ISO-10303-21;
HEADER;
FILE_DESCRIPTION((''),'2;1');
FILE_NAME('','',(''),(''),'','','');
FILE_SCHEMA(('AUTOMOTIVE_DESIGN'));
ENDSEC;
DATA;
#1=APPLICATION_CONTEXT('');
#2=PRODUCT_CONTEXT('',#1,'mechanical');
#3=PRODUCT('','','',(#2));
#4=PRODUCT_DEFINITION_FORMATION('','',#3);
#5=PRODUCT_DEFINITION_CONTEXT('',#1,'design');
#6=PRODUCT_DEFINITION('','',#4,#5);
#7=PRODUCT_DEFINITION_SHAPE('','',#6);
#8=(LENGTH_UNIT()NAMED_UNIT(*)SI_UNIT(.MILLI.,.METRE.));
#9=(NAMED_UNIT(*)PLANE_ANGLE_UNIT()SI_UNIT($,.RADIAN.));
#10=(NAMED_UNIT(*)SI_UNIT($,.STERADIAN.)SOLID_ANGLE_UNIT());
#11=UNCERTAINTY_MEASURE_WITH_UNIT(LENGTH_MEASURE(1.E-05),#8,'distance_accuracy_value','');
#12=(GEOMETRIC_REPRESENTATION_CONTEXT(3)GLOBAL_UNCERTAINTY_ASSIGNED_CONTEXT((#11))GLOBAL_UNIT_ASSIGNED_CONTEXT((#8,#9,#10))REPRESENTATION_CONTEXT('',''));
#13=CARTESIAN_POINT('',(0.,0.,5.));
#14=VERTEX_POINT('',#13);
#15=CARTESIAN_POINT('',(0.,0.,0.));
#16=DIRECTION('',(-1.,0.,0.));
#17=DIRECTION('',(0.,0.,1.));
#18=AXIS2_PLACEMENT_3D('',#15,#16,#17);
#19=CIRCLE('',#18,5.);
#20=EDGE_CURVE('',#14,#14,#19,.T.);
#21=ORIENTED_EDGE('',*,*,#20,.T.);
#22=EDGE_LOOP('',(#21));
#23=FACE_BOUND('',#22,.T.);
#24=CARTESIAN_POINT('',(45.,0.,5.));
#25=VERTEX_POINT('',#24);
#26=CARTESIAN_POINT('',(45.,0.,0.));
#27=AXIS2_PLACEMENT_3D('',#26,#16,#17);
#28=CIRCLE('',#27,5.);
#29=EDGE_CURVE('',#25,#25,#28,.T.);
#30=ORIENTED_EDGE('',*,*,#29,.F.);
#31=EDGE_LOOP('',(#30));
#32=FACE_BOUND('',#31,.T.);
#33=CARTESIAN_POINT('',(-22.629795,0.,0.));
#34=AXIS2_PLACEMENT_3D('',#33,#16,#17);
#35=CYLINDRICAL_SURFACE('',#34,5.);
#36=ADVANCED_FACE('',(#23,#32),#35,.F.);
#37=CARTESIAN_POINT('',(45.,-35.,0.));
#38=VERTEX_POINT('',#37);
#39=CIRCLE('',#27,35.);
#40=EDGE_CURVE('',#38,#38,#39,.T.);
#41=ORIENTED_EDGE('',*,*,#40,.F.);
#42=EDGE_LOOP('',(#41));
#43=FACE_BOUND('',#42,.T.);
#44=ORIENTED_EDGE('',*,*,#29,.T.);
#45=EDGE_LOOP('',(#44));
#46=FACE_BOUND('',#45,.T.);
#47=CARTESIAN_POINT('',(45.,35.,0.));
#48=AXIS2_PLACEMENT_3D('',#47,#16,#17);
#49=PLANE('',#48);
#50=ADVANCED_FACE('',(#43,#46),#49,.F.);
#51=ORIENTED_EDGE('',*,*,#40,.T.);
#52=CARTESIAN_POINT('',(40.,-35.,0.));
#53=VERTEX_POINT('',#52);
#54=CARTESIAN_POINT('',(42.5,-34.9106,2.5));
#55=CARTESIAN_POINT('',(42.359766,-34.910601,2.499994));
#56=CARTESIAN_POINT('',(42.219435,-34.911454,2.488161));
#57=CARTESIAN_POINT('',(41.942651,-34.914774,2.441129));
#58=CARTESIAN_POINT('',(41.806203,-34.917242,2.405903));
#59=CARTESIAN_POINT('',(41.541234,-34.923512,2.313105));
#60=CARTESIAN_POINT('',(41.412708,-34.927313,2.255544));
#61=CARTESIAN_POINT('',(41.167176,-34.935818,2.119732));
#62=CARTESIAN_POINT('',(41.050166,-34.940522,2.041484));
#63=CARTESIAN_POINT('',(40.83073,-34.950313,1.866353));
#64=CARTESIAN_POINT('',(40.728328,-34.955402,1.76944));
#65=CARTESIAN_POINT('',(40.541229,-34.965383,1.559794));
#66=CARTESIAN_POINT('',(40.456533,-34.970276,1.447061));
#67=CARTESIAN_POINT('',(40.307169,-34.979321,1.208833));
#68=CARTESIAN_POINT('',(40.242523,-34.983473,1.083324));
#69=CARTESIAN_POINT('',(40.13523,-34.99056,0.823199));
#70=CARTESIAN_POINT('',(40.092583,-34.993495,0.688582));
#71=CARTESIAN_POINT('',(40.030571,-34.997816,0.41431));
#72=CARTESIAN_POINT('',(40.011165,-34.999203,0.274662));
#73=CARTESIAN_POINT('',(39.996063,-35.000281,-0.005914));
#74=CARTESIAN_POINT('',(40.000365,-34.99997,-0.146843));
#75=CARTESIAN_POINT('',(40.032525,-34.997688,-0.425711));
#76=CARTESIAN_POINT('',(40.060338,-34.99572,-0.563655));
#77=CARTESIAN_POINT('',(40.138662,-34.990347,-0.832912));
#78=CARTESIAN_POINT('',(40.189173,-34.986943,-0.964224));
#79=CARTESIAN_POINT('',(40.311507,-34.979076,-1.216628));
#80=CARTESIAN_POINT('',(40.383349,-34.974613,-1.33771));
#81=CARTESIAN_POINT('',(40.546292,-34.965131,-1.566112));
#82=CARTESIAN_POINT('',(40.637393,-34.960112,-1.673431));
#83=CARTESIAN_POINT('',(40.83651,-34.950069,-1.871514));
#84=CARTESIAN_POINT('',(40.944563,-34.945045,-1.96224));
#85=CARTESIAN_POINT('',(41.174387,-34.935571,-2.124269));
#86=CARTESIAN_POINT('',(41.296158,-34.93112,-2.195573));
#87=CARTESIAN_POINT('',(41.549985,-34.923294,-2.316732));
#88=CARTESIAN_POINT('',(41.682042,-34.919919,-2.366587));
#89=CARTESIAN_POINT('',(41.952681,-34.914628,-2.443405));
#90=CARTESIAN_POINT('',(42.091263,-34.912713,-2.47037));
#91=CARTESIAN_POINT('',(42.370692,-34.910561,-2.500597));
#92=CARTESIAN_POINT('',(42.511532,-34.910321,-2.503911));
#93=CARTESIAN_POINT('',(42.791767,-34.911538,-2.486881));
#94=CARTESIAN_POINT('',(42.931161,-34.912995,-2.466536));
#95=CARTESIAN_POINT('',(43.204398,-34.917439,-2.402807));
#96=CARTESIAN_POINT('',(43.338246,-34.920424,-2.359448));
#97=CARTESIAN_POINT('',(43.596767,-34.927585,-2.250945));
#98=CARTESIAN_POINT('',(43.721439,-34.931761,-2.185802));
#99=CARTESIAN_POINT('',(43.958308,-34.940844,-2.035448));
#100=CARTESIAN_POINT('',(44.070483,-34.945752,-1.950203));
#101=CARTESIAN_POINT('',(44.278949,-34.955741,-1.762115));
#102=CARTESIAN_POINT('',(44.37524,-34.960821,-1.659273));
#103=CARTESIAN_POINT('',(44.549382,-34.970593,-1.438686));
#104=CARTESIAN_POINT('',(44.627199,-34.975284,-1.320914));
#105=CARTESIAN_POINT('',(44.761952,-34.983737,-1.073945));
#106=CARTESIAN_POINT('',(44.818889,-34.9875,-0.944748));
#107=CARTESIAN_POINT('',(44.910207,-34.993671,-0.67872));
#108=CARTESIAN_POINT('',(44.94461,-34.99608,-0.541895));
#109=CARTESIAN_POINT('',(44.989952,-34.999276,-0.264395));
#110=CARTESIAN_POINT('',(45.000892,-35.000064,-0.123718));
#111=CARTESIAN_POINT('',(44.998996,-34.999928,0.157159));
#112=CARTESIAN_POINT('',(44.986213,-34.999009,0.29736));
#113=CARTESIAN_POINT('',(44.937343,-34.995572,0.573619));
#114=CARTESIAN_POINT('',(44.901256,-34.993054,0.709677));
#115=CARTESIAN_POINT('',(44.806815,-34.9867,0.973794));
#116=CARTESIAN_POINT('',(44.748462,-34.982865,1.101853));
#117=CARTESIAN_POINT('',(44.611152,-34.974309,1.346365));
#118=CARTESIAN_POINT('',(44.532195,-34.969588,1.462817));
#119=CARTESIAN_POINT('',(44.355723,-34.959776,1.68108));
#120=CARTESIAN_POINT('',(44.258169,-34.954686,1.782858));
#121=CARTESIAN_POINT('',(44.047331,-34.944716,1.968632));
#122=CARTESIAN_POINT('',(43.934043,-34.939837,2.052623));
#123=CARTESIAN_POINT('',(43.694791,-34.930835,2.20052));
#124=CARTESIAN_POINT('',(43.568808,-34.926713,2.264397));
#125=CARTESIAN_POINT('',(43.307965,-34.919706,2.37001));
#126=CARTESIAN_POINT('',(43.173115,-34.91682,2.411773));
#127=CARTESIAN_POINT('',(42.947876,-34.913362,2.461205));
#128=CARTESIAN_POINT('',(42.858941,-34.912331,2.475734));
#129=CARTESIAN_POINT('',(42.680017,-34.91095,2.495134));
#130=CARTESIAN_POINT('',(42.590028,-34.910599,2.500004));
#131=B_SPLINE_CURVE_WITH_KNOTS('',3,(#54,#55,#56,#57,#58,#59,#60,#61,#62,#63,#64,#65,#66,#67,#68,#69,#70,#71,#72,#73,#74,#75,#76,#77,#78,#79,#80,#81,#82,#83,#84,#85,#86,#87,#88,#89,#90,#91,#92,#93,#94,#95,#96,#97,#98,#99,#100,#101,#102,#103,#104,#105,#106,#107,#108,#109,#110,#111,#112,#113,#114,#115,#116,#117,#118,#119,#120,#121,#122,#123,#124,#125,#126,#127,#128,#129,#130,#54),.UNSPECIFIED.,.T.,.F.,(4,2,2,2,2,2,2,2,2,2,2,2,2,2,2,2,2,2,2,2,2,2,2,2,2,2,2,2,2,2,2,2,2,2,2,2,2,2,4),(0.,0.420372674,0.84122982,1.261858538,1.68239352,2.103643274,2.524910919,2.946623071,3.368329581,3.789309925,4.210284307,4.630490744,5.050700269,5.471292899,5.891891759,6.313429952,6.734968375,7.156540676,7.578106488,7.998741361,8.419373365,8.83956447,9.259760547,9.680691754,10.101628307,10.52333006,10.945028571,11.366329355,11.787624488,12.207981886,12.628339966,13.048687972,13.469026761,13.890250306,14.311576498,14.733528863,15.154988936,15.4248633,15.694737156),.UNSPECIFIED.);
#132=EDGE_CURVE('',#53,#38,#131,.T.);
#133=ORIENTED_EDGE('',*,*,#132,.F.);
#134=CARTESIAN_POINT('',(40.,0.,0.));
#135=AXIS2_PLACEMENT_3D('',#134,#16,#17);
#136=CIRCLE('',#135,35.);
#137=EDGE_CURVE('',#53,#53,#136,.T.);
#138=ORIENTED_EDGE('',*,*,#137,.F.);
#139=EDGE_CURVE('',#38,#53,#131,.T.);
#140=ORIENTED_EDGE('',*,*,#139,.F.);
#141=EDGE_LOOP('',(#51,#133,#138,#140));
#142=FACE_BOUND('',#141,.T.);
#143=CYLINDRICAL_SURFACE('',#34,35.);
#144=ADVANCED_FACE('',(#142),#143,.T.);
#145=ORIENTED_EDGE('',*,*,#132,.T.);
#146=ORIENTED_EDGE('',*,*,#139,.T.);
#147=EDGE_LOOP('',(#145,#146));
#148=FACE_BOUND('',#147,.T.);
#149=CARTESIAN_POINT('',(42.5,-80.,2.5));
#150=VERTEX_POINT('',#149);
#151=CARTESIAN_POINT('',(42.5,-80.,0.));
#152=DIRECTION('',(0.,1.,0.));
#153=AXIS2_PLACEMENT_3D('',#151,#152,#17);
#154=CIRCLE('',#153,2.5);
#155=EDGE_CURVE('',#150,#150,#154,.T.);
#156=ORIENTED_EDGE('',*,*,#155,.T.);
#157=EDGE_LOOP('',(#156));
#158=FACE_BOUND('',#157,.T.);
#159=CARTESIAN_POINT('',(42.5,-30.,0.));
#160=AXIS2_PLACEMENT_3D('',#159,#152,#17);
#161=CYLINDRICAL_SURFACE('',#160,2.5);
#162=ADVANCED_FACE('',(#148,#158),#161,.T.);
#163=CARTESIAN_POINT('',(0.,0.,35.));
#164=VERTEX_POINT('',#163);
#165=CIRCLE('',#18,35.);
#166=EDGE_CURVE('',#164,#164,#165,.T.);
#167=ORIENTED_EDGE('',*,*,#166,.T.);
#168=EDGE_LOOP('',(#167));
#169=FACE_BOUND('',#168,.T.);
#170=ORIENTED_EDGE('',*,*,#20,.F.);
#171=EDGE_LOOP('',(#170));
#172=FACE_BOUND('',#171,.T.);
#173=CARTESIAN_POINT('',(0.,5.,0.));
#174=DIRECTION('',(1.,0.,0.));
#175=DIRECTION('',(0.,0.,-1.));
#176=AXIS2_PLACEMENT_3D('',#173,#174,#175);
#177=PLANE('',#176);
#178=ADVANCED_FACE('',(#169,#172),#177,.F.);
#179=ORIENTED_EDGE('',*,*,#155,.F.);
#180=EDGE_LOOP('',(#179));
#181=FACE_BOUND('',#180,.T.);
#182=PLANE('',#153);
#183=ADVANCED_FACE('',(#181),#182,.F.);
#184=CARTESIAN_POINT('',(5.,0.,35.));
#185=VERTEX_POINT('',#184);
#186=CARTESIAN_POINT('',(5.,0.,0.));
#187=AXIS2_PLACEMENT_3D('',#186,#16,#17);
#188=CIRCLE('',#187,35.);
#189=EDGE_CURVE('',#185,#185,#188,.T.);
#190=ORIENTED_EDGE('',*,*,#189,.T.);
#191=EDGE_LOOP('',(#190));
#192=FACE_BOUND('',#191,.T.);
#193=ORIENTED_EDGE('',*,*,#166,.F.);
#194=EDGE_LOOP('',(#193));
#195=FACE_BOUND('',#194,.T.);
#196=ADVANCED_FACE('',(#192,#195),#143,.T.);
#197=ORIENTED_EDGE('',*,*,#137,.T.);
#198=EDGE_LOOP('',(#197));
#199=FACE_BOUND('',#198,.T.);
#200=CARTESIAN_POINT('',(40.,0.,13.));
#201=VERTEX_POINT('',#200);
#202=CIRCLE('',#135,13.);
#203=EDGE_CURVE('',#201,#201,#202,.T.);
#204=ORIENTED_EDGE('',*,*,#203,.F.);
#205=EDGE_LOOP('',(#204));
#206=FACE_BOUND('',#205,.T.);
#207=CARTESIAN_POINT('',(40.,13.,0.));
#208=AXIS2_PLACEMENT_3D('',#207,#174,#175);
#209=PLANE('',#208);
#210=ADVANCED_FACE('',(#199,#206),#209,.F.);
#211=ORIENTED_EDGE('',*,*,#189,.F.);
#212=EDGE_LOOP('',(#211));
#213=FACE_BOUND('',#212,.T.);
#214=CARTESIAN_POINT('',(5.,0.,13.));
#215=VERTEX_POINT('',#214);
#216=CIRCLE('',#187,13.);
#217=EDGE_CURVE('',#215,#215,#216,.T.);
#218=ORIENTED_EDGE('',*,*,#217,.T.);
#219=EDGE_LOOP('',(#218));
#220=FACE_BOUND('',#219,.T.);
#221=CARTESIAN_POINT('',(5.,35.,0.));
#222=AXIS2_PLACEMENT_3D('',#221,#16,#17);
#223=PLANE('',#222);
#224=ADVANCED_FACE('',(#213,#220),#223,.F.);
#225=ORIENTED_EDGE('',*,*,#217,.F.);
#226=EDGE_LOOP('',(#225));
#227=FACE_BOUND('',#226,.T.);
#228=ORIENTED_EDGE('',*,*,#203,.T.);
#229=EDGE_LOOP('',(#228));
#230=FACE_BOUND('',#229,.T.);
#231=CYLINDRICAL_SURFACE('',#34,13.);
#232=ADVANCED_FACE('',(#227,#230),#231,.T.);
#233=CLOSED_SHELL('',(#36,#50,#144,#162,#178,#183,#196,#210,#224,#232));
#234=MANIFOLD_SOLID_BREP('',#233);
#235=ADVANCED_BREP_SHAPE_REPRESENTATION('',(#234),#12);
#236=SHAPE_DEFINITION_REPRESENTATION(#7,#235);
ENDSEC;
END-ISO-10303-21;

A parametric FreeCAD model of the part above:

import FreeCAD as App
import Part
import Sketcher
Q = App.Units.Quantity


def add_polygon(sketch, points):
    """Adds a closed chain of lines whose ends are joined by coincident constraints."""
    first, n = sketch.GeometryCount, len(points)
    for a, b in zip(points, points[1:] + points[:1]):
        sketch.addGeometry(Part.LineSegment(App.Vector(*a, 0), App.Vector(*b, 0)), False)
    for i in range(n):
        sketch.addConstraint(Sketcher.Constraint("Coincident", first + i, 2, first + (i + 1) % n, 1))

doc = App.newDocument("Part")
params = doc.addObject("Spreadsheet::Sheet", "Params")
for row, (alias, value) in enumerate([
    ("sketch1_width", "45 mm"),
    ("sketch1_width2", "5 mm"),
    ("sketch1_height", "30 mm"),
    ("sketch1_height2", "22 mm"),
    ("revolution_angle", "360 deg"),
    ("sketch2_width", "50 mm"),
    ("sketch2_height", "2.5 mm"),
    ("revolution2_angle", "360 deg"),
], start=1):
    params.set(f"A{row}", alias)
    params.set(f"B{row}", "=" + value)
    params.setAlias(f"B{row}", alias)

body = doc.addObject("PartDesign::Body", "Body")

# Sketch on XY plane
sketch1 = doc.addObject("Sketcher::SketchObject", "Sketch")
body.addObject(sketch1)
sketch1.AttachmentSupport = (doc.XY_Plane, [""])
sketch1.MapMode = "FlatFace"
add_polygon(sketch1, [(0, 35), (0, 5), (45, 5), (45, 35), (40, 35), (40, 13), (5, 13), (5, 35)])  # lines 0-7
sketch1.addConstraint([
    Sketcher.Constraint("Vertical", 0),
    Sketcher.Constraint("Horizontal", 1),
    Sketcher.Constraint("Vertical", 2),
    Sketcher.Constraint("Horizontal", 3),
    Sketcher.Constraint("Vertical", 4),
    Sketcher.Constraint("Horizontal", 5),
    Sketcher.Constraint("Vertical", 6),
    Sketcher.Constraint("Horizontal", 7),
    Sketcher.Constraint("PointOnObject", 0, 2, -2),
    Sketcher.Constraint("Horizontal", 3, 2, 6, 2),
    Sketcher.Constraint("Equal", 3, 7),
    Sketcher.Constraint("DistanceX", 1, 1, 1, 2, Q("45 mm")),
    Sketcher.Constraint("DistanceX", 3, 2, 3, 1, Q("5 mm")),
    Sketcher.Constraint("DistanceY", 0, 2, 0, 1, Q("30 mm")),
    Sketcher.Constraint("DistanceY", 4, 2, 4, 1, Q("22 mm")),
    Sketcher.Constraint("DistanceY", -1, 1, 0, 2, Q("5 mm")),
])
sketch1.setExpression("Constraints[19]", "Params.sketch1_width")
sketch1.setExpression("Constraints[20]", "Params.sketch1_width2")
sketch1.setExpression("Constraints[21]", "Params.sketch1_height")
sketch1.setExpression("Constraints[22]", "Params.sketch1_height2")
revolution = doc.addObject("PartDesign::Revolution", "Revolution")
body.addObject(revolution)
revolution.Profile = sketch1
revolution.ReferenceAxis = (sketch1, ["H_Axis"])
revolution.setExpression("Angle", "Params.revolution_angle")

# Sketch on YZ plane
sketch2 = doc.addObject("Sketcher::SketchObject", "Sketch001")
body.addObject(sketch2)
sketch2.AttachmentSupport = (doc.YZ_Plane, [""])
sketch2.MapMode = "FlatFace"
sketch2.AttachmentOffset = App.Placement(App.Vector(0, 0, 42.5), App.Rotation())
add_polygon(sketch2, [(-30, 0), (-80, 0), (-80, -2.5), (-30, -2.5)])  # lines 0-3
sketch2.addConstraint([
    Sketcher.Constraint("Horizontal", 0),
    Sketcher.Constraint("Vertical", 1),
    Sketcher.Constraint("Horizontal", 2),
    Sketcher.Constraint("Vertical", 3),
    Sketcher.Constraint("PointOnObject", 0, 2, -1),
    Sketcher.Constraint("DistanceX", 0, 2, 0, 1, Q("50 mm")),
    Sketcher.Constraint("DistanceY", 1, 2, 1, 1, Q("2.5 mm")),
    Sketcher.Constraint("DistanceX", 0, 2, -1, 1, Q("80 mm")),
])
sketch2.setExpression("Constraints[9]", "Params.sketch2_width")
sketch2.setExpression("Constraints[10]", "Params.sketch2_height")
revolution2 = doc.addObject("PartDesign::Revolution", "Revolution001")
body.addObject(revolution2)
revolution2.Profile = sketch2
revolution2.ReferenceAxis = (sketch2, ["H_Axis"])
revolution2.setExpression("Angle", "Params.revolution2_angle")

doc.recompute()
